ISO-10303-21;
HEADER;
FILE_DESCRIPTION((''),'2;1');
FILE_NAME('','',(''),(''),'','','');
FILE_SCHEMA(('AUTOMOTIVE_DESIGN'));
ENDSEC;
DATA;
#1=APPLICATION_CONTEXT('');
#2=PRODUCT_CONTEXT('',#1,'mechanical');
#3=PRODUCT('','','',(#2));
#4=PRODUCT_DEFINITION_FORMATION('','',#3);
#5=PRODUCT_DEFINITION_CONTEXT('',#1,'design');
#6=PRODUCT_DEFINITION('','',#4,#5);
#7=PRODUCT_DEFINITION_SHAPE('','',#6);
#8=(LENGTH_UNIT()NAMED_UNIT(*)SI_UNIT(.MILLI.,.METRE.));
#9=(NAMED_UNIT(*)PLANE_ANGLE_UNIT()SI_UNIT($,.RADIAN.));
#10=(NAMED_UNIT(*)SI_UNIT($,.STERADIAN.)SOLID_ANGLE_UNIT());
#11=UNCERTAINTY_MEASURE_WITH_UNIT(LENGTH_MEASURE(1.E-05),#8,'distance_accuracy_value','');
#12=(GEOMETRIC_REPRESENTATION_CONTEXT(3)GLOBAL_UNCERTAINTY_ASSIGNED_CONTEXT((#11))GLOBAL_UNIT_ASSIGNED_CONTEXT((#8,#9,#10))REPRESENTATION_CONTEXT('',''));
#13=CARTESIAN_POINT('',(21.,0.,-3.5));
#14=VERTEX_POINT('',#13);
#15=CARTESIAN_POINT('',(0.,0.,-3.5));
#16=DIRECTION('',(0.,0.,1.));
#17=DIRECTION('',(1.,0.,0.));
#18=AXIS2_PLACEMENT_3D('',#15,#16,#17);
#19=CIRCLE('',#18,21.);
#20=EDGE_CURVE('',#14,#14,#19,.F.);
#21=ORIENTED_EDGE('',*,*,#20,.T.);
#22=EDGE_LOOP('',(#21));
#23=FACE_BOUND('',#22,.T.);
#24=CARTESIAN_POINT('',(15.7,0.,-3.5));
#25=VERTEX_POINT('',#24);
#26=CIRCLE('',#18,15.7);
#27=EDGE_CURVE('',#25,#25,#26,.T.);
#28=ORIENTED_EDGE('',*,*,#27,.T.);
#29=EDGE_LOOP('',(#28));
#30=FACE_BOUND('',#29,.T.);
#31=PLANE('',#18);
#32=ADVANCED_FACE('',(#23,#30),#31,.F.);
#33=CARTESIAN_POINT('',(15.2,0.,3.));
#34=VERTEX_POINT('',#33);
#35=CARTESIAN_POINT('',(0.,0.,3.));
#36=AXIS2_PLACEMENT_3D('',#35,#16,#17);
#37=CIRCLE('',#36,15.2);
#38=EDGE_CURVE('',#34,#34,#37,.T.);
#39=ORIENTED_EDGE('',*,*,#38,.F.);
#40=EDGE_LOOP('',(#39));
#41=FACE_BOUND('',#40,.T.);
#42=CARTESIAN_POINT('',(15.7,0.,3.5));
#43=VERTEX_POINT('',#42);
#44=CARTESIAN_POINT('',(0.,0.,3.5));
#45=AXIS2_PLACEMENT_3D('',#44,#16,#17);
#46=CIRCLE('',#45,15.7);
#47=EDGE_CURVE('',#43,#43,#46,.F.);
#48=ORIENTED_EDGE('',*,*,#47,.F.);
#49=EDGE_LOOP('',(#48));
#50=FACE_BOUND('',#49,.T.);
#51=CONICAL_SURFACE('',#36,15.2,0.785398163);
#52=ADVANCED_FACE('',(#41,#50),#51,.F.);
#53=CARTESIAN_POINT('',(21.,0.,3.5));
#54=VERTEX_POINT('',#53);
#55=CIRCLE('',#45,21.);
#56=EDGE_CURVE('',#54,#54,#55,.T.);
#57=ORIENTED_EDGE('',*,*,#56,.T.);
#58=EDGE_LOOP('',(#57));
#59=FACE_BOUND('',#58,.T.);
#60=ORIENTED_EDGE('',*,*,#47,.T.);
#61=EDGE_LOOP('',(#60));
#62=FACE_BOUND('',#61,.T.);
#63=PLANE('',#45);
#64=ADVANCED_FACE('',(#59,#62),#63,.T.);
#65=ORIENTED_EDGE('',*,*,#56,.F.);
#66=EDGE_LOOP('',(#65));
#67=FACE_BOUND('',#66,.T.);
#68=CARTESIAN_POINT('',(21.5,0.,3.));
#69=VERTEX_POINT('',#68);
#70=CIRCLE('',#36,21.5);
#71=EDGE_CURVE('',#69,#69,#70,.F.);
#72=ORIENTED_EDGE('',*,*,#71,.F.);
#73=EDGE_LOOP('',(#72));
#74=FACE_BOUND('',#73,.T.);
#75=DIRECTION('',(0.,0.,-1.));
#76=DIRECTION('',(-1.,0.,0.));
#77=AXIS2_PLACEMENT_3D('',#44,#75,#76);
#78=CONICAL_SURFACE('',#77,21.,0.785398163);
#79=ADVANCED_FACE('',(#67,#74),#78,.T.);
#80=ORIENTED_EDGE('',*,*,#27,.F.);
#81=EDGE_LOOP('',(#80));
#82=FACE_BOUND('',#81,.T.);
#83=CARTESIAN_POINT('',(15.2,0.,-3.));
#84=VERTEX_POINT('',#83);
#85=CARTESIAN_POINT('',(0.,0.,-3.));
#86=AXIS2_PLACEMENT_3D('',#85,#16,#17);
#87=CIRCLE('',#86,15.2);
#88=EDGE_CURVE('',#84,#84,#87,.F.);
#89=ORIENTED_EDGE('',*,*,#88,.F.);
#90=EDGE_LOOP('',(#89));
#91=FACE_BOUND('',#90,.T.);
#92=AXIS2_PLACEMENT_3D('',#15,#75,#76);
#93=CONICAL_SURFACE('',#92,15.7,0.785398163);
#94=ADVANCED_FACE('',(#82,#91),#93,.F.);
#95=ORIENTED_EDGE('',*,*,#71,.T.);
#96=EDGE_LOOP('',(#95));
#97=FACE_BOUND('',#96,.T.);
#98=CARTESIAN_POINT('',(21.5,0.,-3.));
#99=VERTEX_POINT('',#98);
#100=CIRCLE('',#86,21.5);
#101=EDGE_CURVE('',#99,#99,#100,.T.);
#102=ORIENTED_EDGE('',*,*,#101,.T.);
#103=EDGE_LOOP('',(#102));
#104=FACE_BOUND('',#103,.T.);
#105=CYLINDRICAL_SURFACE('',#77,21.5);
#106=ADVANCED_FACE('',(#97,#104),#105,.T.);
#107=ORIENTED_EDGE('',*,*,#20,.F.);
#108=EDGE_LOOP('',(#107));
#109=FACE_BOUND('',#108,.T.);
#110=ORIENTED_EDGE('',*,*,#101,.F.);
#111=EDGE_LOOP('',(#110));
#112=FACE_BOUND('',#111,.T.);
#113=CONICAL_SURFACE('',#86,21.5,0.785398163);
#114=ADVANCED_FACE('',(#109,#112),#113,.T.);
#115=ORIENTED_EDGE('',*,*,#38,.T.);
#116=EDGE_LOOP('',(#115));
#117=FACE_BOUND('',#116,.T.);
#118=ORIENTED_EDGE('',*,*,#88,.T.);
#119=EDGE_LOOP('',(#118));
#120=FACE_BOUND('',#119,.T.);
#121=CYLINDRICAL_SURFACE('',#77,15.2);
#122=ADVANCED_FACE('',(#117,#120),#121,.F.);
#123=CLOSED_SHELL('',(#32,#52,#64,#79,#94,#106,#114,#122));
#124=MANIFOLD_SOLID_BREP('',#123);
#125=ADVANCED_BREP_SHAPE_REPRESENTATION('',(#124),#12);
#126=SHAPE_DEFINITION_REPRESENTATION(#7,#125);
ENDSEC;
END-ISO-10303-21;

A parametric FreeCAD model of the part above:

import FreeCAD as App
import Part
import Sketcher
from FreeCAD import Vector


def edges_at(feature, points):
    """Names of the edges that pass closest to the given points."""
    edges = feature.Shape.Edges
    near = lambda p: min(range(len(edges)), key=lambda i: edges[i].distToShape(Part.Vertex(*p))[0])
    return sorted({f"Edge{near(p) + 1}" for p in points})

doc = App.newDocument("Part")
body = doc.addObject("PartDesign::Body", "Body")

# Sketch on XY plane
sketch1 = doc.addObject("Sketcher::SketchObject", "Sketch")
body.addObject(sketch1)
sketch1.AttachmentSupport = (doc.XY_Plane, [""])
sketch1.MapMode = "FlatFace"
sketch1.addGeometry(Part.Circle(Vector(0, 0, 0), Vector(0, 0, 1), 22), False)
sketch1.addGeometry(Part.Circle(Vector(0, 0, 0), Vector(0, 0, 1), 15), False)
sketch1.addConstraint(Sketcher.Constraint("Coincident", 0, 3, -1, 1))
sketch1.addConstraint(Sketcher.Constraint("Coincident", 1, 3, -1, 1))
sketch1.addConstraint(Sketcher.Constraint("Diameter", 0, 43.0))
sketch1.addConstraint(Sketcher.Constraint("Diameter", 1, 30.4))
pad1 = doc.addObject("PartDesign::Pad", "Pad")
body.addObject(pad1)
pad1.Profile = sketch1
pad1.Length = 7
pad1.Midplane = True
doc.recompute()

chamfer = doc.addObject("PartDesign::Chamfer", "Chamfer")
body.addObject(chamfer)
chamfer.Base = (pad1, edges_at(pad1, [
    (-21.5, 0, -3.5),
    (-21.5, 0, 3.5),
    (-15.2, 0, -3.5),
    (-15.2, 0, 3.5),
]))
chamfer.Size = 0.5

doc.recompute()
